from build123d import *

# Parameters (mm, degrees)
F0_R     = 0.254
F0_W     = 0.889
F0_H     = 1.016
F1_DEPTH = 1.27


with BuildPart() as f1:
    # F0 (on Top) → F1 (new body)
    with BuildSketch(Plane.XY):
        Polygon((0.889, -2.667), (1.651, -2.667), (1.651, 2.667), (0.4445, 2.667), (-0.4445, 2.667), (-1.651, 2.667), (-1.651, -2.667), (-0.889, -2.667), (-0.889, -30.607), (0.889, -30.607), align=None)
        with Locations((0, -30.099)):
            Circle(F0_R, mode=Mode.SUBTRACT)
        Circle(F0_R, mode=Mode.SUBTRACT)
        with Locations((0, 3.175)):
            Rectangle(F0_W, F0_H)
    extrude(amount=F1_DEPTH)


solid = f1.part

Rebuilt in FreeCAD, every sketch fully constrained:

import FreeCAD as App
import Part
import Sketcher
Q = App.Units.Quantity

doc = App.newDocument("Part")
body = doc.addObject("PartDesign::Body", "Body")

# Sketch on XY plane
sketch1 = doc.addObject("Sketcher::SketchObject", "Sketch")
body.addObject(sketch1)
sketch1.AttachmentSupport = (doc.XY_Plane, [""])
sketch1.MapMode = "FlatFace"
sketch1.addGeometry([
    Part.LineSegment(App.Vector(0.889, -2.667, 0), App.Vector(1.651, -2.667, 0)),  # 0
    Part.LineSegment(App.Vector(1.651, -2.667, 0), App.Vector(1.651, 2.667, 0)),  # 1
    Part.LineSegment(App.Vector(1.651, 2.667, 0), App.Vector(0.4445, 2.667, 0)),  # 2
    Part.LineSegment(App.Vector(0.4445, 2.667, 0), App.Vector(0.4445, 3.683, 0)),  # 3
    Part.LineSegment(App.Vector(0.4445, 3.683, 0), App.Vector(-0.4445, 3.683, 0)),  # 4
    Part.LineSegment(App.Vector(-0.4445, 3.683, 0), App.Vector(-0.4445, 2.667, 0)),  # 5
    Part.LineSegment(App.Vector(-0.4445, 2.667, 0), App.Vector(-1.651, 2.667, 0)),  # 6
    Part.LineSegment(App.Vector(-1.651, 2.667, 0), App.Vector(-1.651, -2.667, 0)),  # 7
    Part.LineSegment(App.Vector(-1.651, -2.667, 0), App.Vector(-0.889, -2.667, 0)),  # 8
    Part.LineSegment(App.Vector(-0.889, -2.667, 0), App.Vector(-0.889, -30.607, 0)),  # 9
    Part.LineSegment(App.Vector(-0.889, -30.607, 0), App.Vector(0.889, -30.607, 0)),  # 10
    Part.LineSegment(App.Vector(0.889, -30.607, 0), App.Vector(0.889, -2.667, 0)),  # 11
    Part.Circle(App.Vector(0, -30.099, 0), App.Vector(0, 0, 1), 0.254),  # 12
    Part.Circle(App.Vector(0, 0, 0), App.Vector(0, 0, 1), 0.254),  # 13
], False)
sketch1.addConstraint([
    Sketcher.Constraint("Coincident", 0, 2, 1, 1),
    Sketcher.Constraint("Coincident", 1, 2, 2, 1),
    Sketcher.Constraint("Coincident", 2, 2, 3, 1),
    Sketcher.Constraint("Coincident", 3, 2, 4, 1),
    Sketcher.Constraint("Coincident", 4, 2, 5, 1),
    Sketcher.Constraint("Coincident", 5, 2, 6, 1),
    Sketcher.Constraint("Coincident", 6, 2, 7, 1),
    Sketcher.Constraint("Coincident", 7, 2, 8, 1),
    Sketcher.Constraint("Coincident", 8, 2, 9, 1),
    Sketcher.Constraint("Coincident", 9, 2, 10, 1),
    Sketcher.Constraint("Coincident", 10, 2, 11, 1),
    Sketcher.Constraint("Coincident", 11, 2, 0, 1),
    Sketcher.Constraint("Horizontal", 0),
    Sketcher.Constraint("Vertical", 1),
    Sketcher.Constraint("Horizontal", 2),
    Sketcher.Constraint("Vertical", 3),
    Sketcher.Constraint("Horizontal", 4),
    Sketcher.Constraint("Vertical", 5),
    Sketcher.Constraint("Horizontal", 6),
    Sketcher.Constraint("Vertical", 7),
    Sketcher.Constraint("Horizontal", 8),
    Sketcher.Constraint("Vertical", 9),
    Sketcher.Constraint("Horizontal", 10),
    Sketcher.Constraint("Vertical", 11),
    Sketcher.Constraint("Coincident", 13, 3, -1, 1),
    Sketcher.Constraint("Equal", 12, 13),
    Sketcher.Constraint("Symmetric", 0, 2, 6, 2, -1, 1),
    Sketcher.Constraint("Symmetric", 2, 2, 5, 2, -2),
    Sketcher.Constraint("Symmetric", 8, 2, 11, 2, -2),
    Sketcher.Constraint("PointOnObject", 12, 3, -2),
    Sketcher.Constraint("Diameter", 12, Q("0.02 in")),
    Sketcher.Constraint("DistanceY", 9, 2, 9, 1, Q("1.1 in")),
    Sketcher.Constraint("DistanceX", 0, 1, 0, 2, Q("0.03 in")),
    Sketcher.Constraint("DistanceX", 10, 1, 10, 2, Q("0.07 in")),
    Sketcher.Constraint("DistanceY", 1, 1, 1, 2, Q("0.21 in")),
    Sketcher.Constraint("DistanceY", 3, 1, 3, 2, Q("0.04 in")),
    Sketcher.Constraint("DistanceX", 4, 2, 4, 1, Q("0.035 in")),
    Sketcher.Constraint("DistanceY", 12, 3, 0, 2, Q("1.08 in")),
])
pad1 = doc.addObject("PartDesign::Pad", "Pad")
body.addObject(pad1)
pad1.Profile = sketch1
pad1.Length = Q("0.05 in")

doc.recompute()
